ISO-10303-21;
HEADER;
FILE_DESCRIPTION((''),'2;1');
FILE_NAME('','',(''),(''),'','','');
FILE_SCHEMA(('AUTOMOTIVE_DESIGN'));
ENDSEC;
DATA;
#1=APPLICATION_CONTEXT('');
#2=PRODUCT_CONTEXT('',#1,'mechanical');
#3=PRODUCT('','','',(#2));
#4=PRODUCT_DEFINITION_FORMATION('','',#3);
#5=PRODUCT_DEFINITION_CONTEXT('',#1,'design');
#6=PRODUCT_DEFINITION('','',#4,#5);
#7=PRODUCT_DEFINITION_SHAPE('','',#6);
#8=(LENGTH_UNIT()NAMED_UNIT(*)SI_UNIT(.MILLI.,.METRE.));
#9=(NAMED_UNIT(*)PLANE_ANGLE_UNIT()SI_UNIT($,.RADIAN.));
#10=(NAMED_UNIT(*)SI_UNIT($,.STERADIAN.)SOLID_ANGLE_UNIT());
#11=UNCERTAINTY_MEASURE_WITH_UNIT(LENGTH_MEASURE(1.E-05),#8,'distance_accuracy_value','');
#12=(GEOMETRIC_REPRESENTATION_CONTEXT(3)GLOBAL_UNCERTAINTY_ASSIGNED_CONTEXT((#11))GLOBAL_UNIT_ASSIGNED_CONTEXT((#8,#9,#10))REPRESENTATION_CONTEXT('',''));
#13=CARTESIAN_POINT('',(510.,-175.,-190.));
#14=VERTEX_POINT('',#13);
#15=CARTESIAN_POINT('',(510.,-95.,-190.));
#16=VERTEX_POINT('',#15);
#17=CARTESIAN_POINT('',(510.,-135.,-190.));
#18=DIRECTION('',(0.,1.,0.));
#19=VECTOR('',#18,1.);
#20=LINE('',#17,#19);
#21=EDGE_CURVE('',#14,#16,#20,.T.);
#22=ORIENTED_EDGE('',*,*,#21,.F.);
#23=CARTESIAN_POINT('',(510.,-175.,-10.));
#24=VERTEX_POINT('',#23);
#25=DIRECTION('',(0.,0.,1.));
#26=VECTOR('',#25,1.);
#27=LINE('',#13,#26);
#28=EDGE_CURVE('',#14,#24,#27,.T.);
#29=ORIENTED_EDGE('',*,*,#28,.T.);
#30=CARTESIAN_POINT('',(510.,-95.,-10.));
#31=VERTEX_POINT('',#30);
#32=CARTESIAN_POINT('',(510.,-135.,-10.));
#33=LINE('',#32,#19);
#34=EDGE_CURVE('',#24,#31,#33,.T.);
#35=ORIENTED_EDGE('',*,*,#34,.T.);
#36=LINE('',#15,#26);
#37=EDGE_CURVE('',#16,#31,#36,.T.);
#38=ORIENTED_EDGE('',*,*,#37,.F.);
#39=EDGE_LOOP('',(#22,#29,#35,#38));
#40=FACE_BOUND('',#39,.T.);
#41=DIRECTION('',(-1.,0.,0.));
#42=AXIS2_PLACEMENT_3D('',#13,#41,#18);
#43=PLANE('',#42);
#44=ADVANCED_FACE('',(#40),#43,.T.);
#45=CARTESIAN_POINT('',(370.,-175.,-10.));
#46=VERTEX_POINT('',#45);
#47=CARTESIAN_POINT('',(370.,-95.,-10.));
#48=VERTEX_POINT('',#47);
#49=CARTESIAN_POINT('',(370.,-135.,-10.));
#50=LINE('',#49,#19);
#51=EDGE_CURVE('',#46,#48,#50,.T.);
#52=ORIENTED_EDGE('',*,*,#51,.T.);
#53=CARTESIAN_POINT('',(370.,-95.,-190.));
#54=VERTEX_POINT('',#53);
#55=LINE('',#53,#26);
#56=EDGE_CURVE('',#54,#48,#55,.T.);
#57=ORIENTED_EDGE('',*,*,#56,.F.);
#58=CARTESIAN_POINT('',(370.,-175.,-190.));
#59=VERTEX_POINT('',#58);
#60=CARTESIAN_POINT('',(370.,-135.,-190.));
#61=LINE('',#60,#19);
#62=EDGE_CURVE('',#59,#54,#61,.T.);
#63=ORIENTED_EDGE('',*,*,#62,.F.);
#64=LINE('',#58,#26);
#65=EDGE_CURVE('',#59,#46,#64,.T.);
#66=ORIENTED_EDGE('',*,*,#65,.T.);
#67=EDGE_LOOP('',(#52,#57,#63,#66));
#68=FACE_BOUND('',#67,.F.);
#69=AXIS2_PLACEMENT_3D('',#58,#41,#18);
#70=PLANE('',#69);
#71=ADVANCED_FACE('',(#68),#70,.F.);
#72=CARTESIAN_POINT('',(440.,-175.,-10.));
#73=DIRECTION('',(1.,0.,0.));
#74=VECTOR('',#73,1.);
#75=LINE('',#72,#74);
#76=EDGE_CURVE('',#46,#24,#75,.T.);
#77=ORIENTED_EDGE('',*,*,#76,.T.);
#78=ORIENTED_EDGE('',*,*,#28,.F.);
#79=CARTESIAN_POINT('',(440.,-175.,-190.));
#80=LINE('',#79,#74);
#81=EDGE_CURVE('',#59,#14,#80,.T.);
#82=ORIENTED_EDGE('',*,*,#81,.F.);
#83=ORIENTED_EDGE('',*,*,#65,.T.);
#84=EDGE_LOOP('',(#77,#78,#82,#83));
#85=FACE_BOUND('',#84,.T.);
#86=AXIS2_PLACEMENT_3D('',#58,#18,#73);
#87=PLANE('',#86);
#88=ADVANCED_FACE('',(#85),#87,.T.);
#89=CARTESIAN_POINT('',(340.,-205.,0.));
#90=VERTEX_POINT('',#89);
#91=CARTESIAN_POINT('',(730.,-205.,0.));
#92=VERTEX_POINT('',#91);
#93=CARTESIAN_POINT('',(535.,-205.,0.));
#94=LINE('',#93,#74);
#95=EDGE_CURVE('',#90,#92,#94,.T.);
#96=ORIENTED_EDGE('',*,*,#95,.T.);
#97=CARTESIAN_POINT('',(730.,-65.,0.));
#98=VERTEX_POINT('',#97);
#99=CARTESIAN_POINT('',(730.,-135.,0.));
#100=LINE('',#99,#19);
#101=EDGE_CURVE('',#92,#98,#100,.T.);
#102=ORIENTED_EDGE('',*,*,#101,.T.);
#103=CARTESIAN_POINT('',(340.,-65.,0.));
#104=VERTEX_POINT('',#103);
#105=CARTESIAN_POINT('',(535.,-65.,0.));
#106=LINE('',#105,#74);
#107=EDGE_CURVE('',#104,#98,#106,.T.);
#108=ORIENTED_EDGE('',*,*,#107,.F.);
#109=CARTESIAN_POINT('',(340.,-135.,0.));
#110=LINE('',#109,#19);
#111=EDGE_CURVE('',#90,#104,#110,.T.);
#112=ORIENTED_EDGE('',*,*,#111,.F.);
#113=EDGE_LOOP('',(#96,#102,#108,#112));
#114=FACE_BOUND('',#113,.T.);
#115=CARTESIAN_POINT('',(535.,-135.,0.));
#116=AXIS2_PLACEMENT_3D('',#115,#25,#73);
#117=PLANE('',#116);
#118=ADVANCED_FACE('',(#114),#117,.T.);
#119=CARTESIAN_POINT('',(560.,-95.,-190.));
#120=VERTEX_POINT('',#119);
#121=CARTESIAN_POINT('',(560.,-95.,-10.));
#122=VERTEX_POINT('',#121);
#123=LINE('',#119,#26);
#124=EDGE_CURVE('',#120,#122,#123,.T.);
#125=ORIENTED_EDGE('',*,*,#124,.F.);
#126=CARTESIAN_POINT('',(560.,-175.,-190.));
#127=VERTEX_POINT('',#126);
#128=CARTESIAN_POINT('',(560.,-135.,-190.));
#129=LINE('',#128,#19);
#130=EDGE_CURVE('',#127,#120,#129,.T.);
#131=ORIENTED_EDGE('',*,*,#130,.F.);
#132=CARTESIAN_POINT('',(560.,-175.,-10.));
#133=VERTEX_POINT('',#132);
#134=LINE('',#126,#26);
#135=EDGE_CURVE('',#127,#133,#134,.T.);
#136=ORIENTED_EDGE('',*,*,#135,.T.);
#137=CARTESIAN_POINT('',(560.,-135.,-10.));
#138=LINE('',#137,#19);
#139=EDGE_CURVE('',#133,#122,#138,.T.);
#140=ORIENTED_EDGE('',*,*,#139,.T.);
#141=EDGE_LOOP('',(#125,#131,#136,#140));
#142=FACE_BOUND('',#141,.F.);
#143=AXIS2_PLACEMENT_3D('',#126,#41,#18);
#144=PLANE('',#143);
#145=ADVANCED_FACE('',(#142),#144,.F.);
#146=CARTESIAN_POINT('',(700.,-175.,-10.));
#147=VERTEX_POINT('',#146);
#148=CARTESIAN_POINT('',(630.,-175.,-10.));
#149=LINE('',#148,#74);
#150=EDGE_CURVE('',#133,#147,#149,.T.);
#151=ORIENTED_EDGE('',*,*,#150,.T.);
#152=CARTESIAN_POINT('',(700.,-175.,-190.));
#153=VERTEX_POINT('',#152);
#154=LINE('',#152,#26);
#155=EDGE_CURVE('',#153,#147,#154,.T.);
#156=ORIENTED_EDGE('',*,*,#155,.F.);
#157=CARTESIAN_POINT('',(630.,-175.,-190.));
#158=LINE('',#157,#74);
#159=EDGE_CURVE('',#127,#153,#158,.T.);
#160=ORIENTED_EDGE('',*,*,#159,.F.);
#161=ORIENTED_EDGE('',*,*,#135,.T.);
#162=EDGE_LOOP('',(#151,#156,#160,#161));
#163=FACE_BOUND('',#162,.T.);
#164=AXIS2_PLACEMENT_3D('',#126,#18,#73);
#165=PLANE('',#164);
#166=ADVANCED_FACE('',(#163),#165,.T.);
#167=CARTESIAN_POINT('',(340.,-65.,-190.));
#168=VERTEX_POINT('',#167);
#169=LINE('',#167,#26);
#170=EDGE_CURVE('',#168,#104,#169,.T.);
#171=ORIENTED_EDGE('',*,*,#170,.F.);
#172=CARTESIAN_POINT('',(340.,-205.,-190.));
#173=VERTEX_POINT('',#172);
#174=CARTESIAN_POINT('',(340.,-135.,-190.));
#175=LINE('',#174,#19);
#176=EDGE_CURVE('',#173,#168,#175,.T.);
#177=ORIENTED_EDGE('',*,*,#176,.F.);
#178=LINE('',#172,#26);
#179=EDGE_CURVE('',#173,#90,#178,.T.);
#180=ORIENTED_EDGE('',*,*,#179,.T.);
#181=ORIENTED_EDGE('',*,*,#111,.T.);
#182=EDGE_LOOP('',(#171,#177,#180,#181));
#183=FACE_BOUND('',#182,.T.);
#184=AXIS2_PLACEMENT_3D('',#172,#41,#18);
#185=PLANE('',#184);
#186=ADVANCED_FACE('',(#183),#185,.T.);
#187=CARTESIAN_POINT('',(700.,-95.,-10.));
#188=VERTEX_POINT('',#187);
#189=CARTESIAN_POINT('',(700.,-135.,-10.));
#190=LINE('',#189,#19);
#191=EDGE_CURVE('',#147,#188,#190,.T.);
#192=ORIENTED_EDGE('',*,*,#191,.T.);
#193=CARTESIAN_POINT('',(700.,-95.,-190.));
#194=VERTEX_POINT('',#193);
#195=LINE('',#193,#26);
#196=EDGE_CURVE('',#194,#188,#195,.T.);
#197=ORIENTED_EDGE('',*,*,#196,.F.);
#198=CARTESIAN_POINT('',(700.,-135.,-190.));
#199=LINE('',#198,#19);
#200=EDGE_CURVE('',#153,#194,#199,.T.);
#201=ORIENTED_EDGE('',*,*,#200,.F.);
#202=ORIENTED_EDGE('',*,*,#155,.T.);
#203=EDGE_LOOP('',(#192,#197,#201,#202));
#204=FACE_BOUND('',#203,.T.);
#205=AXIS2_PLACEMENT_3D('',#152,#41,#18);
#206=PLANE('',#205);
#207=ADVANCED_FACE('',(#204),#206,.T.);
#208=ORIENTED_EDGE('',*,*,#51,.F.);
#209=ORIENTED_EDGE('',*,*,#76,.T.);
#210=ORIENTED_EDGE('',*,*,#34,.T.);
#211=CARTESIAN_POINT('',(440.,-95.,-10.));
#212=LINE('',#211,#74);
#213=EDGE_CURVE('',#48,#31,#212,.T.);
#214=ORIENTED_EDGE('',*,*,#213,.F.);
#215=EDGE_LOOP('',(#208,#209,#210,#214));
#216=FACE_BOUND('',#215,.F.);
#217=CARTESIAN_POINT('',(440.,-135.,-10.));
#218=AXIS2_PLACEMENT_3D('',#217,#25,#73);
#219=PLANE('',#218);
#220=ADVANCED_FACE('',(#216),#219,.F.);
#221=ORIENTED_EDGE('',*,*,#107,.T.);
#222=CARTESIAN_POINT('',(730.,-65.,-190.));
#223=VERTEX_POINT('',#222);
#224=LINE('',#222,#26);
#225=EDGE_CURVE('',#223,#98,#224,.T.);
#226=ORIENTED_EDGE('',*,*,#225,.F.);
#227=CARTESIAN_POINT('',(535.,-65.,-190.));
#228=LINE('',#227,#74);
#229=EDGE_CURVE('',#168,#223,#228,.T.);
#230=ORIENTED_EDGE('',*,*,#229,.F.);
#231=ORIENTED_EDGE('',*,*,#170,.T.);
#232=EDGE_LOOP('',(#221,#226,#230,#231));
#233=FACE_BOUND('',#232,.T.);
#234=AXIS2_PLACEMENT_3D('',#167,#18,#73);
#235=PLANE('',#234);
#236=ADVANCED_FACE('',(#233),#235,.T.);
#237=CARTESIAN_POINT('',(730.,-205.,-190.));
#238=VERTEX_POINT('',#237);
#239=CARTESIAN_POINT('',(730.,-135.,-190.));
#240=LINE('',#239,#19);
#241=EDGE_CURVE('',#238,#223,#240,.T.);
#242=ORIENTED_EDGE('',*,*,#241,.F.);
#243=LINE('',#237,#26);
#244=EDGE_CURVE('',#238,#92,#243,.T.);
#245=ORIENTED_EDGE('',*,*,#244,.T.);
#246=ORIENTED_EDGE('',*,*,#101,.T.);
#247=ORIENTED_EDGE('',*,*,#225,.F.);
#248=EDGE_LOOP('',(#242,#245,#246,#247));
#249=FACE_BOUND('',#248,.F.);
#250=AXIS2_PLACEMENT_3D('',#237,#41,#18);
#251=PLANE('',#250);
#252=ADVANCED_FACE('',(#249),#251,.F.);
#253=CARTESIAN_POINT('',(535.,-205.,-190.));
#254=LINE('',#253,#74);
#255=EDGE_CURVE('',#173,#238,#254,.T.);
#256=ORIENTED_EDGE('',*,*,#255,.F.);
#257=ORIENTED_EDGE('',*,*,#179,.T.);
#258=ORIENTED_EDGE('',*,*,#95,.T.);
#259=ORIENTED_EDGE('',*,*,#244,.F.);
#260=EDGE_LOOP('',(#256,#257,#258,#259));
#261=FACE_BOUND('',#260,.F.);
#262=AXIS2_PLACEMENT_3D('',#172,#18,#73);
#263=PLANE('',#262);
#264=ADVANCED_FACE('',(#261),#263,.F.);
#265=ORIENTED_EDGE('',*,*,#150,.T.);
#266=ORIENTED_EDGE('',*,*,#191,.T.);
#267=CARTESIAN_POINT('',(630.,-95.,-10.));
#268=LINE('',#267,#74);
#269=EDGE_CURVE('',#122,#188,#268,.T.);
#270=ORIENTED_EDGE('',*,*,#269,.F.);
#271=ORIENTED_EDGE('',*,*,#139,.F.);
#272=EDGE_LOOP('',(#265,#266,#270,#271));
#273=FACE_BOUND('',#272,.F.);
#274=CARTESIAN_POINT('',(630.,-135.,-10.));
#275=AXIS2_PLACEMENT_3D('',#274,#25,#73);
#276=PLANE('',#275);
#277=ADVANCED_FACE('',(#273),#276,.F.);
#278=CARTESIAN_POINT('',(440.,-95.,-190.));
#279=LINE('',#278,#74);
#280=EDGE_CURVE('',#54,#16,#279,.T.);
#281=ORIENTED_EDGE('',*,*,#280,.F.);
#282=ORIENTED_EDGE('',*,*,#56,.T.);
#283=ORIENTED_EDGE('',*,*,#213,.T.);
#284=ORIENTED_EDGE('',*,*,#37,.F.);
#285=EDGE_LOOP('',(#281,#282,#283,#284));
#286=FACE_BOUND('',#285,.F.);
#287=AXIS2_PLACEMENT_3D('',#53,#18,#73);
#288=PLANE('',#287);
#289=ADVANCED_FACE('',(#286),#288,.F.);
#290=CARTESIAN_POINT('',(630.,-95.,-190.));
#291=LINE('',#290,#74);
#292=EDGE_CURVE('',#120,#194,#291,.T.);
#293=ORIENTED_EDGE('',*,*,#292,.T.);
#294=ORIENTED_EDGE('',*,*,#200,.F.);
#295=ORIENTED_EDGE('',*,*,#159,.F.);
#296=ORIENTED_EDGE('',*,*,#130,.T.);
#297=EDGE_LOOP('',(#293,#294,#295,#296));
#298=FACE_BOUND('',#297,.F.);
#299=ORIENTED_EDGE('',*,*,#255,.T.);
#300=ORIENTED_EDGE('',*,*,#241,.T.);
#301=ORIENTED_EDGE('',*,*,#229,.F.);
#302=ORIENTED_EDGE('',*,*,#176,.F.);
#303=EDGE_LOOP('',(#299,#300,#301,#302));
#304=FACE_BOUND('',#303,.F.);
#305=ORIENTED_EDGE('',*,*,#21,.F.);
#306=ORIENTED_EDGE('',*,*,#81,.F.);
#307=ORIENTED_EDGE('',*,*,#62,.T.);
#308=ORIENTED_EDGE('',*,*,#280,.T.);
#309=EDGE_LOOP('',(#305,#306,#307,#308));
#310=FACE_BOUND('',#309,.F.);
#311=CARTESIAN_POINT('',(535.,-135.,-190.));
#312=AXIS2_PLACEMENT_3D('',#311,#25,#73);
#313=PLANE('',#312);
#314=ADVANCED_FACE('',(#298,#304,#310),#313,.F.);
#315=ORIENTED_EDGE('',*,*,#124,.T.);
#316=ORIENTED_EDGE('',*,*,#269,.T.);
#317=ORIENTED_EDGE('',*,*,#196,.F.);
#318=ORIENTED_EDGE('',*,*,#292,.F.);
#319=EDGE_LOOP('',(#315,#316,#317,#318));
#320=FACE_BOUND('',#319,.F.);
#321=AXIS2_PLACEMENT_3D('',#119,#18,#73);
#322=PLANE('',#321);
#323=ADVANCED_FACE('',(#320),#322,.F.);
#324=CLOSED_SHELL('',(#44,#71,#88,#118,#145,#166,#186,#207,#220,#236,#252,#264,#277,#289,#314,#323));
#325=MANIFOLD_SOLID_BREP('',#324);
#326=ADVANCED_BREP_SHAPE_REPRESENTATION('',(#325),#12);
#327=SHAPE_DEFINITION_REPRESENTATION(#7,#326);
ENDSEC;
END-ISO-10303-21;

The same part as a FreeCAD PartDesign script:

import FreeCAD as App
import Part
import Sketcher
Q = App.Units.Quantity


def add_polygon(sketch, points):
    """Adds a closed chain of lines whose ends are joined by coincident constraints."""
    first, n = sketch.GeometryCount, len(points)
    for a, b in zip(points, points[1:] + points[:1]):
        sketch.addGeometry(Part.LineSegment(App.Vector(*a, 0), App.Vector(*b, 0)), False)
    for i in range(n):
        sketch.addConstraint(Sketcher.Constraint("Coincident", first + i, 2, first + (i + 1) % n, 1))

doc = App.newDocument("Part")
body = doc.addObject("PartDesign::Body", "Body")

# Sketch on XY plane
sketch1 = doc.addObject("Sketcher::SketchObject", "Sketch")
body.addObject(sketch1)
sketch1.AttachmentSupport = (doc.XY_Plane, [""])
sketch1.MapMode = "FlatFace"
add_polygon(sketch1, [(220, 110), (220, 30), (360, 30), (360, 110)])  # lines 0-3
sketch1.addConstraint([
    Sketcher.Constraint("Vertical", 0),
    Sketcher.Constraint("Horizontal", 1),
    Sketcher.Constraint("Vertical", 2),
    Sketcher.Constraint("Horizontal", 3),
    Sketcher.Constraint("DistanceX", 1, 1, 1, 2, Q("140 mm")),
    Sketcher.Constraint("DistanceY", 0, 2, 0, 1, Q("80 mm")),
    Sketcher.Constraint("DistanceX", -1, 1, 0, 2, Q("220 mm")),
    Sketcher.Constraint("DistanceY", -1, 1, 0, 2, Q("30 mm")),
])
pad1 = doc.addObject("PartDesign::Pad", "Pad")
body.addObject(pad1)
pad1.Profile = sketch1
pad1.Length = 180
body2 = doc.addObject("PartDesign::Body", "Body001")
body2.AllowCompound = True

# Sketch on XY plane
sketch2 = doc.addObject("Sketcher::SketchObject", "Sketch001")
body2.addObject(sketch2)
sketch2.AttachmentSupport = (doc.getObject("XY_Plane001"), [""])
sketch2.MapMode = "FlatFace"
add_polygon(sketch2, [(30, 110), (30, 30), (170, 30), (170, 110)])  # lines 0-3
sketch2.addConstraint([
    Sketcher.Constraint("Vertical", 0),
    Sketcher.Constraint("Horizontal", 1),
    Sketcher.Constraint("Vertical", 2),
    Sketcher.Constraint("Horizontal", 3),
    Sketcher.Constraint("DistanceX", 1, 1, 1, 2, Q("140 mm")),
    Sketcher.Constraint("DistanceY", 0, 2, 0, 1, Q("80 mm")),
    Sketcher.Constraint("DistanceX", -1, 1, 0, 2, Q("30 mm")),
    Sketcher.Constraint("DistanceY", -1, 1, 0, 2, Q("30 mm")),
])
pad2 = doc.addObject("PartDesign::Pad", "Pad001")
body2.addObject(pad2)
pad2.Profile = sketch2
pad2.Length = 180
doc.recompute()

boolean = doc.addObject("PartDesign::Boolean", "Boolean")
body2.addObject(boolean)
boolean.Type = "Fuse"
boolean.addObjects([body])
body3 = doc.addObject("PartDesign::Body", "Body002")

# Sketch on XY plane
sketch3 = doc.addObject("Sketcher::SketchObject", "Sketch002")
body3.addObject(sketch3)
sketch3.AttachmentSupport = (doc.getObject("XY_Plane002"), [""])
sketch3.MapMode = "FlatFace"
add_polygon(sketch3, [(0, 140), (0, 0), (390, 0), (390, 140)])  # lines 0-3
sketch3.addConstraint([
    Sketcher.Constraint("Vertical", 0),
    Sketcher.Constraint("Horizontal", 1),
    Sketcher.Constraint("Vertical", 2),
    Sketcher.Constraint("Horizontal", 3),
    Sketcher.Constraint("Coincident", 0, 2, -1, 1),
    Sketcher.Constraint("DistanceX", 1, 1, 1, 2, Q("390 mm")),
    Sketcher.Constraint("DistanceY", 0, 2, 0, 1, Q("140 mm")),
])
pad3 = doc.addObject("PartDesign::Pad", "Pad002")
body3.addObject(pad3)
pad3.Profile = sketch3
pad3.Length = 190
doc.recompute()

boolean2 = doc.addObject("PartDesign::Boolean", "Boolean001")
body3.addObject(boolean2)
boolean2.Type = "Cut"
boolean2.addObjects([body2])
body4 = doc.addObject("PartDesign::Body", "Body003")
doc.recompute()

body3.Placement = App.Placement(App.Vector(340, -205, -190), App.Rotation(App.Vector(0, 0, 1), 0))
boolean3 = doc.addObject("PartDesign::Boolean", "Boolean002")
body4.addObject(boolean3)
boolean3.Type = "Fuse"
boolean3.addObjects([body3])

doc.recompute()
